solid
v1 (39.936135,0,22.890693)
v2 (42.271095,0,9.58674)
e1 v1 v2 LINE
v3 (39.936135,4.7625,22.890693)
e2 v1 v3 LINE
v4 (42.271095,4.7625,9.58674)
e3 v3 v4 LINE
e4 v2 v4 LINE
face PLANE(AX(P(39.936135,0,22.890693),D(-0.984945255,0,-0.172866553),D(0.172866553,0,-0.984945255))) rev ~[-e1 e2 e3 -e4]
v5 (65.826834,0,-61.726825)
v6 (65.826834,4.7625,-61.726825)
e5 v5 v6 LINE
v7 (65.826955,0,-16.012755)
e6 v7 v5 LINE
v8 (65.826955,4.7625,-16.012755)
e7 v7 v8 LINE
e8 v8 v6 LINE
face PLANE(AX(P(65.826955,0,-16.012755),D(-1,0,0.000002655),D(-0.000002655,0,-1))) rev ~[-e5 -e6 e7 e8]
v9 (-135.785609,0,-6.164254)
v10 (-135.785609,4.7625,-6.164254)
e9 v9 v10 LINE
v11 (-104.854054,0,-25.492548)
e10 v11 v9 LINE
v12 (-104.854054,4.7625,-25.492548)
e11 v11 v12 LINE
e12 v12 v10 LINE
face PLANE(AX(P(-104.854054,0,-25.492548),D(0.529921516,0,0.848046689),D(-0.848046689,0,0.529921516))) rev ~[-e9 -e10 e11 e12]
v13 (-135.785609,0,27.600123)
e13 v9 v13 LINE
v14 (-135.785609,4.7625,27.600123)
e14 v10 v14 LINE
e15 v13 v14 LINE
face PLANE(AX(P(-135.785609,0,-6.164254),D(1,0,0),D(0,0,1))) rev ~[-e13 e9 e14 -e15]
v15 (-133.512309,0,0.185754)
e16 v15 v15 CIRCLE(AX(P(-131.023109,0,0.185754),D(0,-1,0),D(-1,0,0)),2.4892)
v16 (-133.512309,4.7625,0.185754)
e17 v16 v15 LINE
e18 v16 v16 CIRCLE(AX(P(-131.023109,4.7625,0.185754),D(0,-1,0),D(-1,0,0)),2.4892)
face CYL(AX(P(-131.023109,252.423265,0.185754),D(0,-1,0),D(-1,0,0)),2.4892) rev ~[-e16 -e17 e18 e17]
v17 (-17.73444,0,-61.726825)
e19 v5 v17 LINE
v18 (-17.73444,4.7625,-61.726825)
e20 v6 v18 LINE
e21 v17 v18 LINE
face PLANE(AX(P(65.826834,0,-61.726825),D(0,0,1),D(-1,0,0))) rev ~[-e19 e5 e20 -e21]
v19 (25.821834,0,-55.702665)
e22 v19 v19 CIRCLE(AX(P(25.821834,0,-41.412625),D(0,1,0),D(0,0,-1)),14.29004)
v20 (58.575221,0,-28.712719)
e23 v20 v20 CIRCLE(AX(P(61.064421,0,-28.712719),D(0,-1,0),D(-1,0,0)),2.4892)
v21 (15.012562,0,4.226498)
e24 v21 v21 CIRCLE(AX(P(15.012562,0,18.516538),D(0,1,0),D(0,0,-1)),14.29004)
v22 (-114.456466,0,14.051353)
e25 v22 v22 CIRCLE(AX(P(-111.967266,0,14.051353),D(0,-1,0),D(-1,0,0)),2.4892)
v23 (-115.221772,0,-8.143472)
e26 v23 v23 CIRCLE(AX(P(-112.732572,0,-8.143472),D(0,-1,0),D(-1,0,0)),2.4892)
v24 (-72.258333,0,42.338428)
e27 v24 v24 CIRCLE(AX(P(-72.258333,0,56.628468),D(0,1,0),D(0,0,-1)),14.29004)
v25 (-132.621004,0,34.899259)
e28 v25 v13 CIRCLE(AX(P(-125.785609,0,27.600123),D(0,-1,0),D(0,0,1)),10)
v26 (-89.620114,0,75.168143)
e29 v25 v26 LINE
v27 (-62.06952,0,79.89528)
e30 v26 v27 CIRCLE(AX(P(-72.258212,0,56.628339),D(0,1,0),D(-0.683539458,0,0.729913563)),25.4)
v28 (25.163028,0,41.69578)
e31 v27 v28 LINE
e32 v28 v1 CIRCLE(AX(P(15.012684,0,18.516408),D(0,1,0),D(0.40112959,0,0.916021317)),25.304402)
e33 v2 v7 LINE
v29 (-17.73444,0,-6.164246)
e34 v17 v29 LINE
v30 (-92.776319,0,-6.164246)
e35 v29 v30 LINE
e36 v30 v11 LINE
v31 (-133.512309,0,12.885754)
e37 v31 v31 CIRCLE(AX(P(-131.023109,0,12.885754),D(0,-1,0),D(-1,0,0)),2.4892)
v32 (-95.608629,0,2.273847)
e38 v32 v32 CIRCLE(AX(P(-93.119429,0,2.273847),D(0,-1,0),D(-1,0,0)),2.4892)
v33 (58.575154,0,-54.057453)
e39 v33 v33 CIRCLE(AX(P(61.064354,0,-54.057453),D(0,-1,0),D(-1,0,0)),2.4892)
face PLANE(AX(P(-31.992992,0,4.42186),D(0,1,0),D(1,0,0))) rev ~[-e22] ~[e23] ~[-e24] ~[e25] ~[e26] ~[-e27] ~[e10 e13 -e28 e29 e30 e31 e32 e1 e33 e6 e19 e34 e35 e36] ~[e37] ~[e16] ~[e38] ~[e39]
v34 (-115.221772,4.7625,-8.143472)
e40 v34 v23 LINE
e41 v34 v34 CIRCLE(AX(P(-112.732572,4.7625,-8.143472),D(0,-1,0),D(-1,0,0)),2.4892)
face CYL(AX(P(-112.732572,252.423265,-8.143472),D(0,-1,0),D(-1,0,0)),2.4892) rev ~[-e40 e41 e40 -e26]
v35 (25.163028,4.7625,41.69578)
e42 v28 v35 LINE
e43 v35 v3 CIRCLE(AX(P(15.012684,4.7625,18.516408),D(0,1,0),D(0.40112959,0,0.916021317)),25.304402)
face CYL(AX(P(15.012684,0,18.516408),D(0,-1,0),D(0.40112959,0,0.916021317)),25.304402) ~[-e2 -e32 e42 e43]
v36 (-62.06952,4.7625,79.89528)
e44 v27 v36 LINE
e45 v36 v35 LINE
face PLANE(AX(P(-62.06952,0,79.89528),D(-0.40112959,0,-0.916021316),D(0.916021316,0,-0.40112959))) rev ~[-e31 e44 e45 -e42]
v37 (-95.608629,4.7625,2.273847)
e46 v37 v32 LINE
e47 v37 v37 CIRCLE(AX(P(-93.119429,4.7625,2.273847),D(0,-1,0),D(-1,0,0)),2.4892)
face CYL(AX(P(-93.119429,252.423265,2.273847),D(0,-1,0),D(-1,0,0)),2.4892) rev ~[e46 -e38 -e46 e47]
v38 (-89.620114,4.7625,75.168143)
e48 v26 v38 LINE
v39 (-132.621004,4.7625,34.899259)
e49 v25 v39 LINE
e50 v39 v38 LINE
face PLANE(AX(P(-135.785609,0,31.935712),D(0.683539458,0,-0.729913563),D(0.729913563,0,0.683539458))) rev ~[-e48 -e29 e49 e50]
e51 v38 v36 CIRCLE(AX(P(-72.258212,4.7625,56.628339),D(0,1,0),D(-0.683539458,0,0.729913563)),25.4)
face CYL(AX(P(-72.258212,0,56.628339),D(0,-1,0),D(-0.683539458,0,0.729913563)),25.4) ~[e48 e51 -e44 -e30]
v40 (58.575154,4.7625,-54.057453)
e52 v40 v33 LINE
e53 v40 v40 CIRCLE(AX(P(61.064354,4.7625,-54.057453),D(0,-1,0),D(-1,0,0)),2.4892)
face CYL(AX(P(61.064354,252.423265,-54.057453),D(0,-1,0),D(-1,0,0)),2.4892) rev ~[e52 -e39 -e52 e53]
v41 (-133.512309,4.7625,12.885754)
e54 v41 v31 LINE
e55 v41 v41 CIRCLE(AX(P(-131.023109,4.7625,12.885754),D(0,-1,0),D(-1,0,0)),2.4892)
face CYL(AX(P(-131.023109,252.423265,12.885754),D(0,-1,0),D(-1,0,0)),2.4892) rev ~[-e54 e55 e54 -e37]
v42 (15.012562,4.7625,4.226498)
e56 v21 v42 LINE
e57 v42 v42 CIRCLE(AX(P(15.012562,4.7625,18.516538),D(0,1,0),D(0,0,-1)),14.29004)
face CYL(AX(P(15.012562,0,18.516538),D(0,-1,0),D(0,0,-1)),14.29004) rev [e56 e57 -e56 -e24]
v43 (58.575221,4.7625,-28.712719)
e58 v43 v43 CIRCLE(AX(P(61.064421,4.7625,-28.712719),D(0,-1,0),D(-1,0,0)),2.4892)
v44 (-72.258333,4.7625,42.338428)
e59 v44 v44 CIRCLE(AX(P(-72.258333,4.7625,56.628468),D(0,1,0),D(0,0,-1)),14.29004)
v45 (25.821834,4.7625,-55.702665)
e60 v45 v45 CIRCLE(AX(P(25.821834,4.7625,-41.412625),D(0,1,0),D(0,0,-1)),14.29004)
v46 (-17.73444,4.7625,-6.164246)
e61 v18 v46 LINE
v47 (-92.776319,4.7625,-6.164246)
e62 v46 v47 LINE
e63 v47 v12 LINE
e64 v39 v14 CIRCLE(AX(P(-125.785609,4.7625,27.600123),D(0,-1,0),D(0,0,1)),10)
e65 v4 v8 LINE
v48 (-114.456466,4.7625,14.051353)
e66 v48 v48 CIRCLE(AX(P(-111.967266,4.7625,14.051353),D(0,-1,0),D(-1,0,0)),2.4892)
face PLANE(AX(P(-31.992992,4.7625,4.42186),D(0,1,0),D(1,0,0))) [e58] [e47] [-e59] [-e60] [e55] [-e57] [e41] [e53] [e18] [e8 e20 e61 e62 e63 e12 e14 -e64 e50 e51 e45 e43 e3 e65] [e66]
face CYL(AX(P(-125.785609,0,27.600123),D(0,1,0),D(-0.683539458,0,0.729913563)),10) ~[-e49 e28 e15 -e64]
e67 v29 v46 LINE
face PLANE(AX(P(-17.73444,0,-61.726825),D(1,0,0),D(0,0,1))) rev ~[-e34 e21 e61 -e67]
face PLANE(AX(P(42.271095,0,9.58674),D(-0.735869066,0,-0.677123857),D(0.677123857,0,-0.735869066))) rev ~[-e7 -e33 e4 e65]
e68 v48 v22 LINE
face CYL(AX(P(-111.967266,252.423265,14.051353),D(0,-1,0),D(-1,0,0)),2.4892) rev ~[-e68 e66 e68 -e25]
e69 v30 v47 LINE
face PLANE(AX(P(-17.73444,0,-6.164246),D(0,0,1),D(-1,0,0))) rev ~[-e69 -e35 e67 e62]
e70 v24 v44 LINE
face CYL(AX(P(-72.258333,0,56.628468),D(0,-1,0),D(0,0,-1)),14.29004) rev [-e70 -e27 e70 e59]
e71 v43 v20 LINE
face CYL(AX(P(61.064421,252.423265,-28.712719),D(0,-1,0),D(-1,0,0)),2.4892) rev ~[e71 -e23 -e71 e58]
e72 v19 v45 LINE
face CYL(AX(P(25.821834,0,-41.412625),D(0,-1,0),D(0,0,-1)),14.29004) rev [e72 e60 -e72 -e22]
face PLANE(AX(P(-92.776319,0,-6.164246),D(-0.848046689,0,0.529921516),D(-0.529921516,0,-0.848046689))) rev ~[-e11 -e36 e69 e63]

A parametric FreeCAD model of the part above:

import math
import FreeCAD as App
import Part
import Sketcher
from FreeCAD import Vector
Q = App.Units.Quantity


def edges_at(feature, points):
    """Names of the edges that pass closest to the given points."""
    edges = feature.Shape.Edges
    near = lambda p: min(range(len(edges)), key=lambda i: edges[i].distToShape(Part.Vertex(*p))[0])
    return sorted({f"Edge{near(p) + 1}" for p in points})

doc = App.newDocument("Part")
body = doc.addObject("PartDesign::Body", "Body")

# Sketch on XZ plane
sketch1 = body.newObject("Sketcher::SketchObject", "Sketch")
sketch1.AttachmentSupport = (doc.getObject("XZ_Plane"), [""])
sketch1.MapMode = "FlatFace"
sketch1.addGeometry([
    Part.LineSegment(Vector(-62.06952, 79.89528, 0), Vector(25.163028, 41.69578, 0)),  # 0
    Part.ArcOfCircle(Part.Circle(Vector(15.012684, 18.516408, 0), Vector(0, 0, 1), 25.304402), math.radians(9.954529), math.radians(66.351186)),  # 1
    Part.LineSegment(Vector(39.936135, 22.890693, 0), Vector(42.271095, 9.58674, 0)),  # 2
    Part.LineSegment(Vector(42.271095, 9.58674, 0), Vector(65.826955, -16.012755, 0)),  # 3
    Part.LineSegment(Vector(65.826955, -16.012755, 0), Vector(65.826834, -61.726825, 0)),  # 4
    Part.LineSegment(Vector(65.826834, -61.726825, 0), Vector(-17.73444, -61.726825, 0)),  # 5
    Part.LineSegment(Vector(-17.73444, -61.726825, 0), Vector(-17.73444, -6.164246, 0)),  # 6
    Part.LineSegment(Vector(-17.73444, -6.164246, 0), Vector(-92.776319, -6.164246, 0)),  # 7
    Part.LineSegment(Vector(-92.776319, -6.164246, 0), Vector(-104.854054, -25.492548, 0)),  # 8
    Part.LineSegment(Vector(-104.854054, -25.492548, 0), Vector(-135.785609, -6.164254, 0)),  # 9
    Part.LineSegment(Vector(-135.785609, -6.164254, 0), Vector(-135.785609, 31.935712, 0)),  # 10
    Part.LineSegment(Vector(-135.785609, 31.935712, 0), Vector(-89.620114, 75.168143, 0)),  # 11
    Part.ArcOfCircle(Part.Circle(Vector(-72.258212, 56.628339, 0), Vector(0, 0, 1), 25.4), math.radians(66.351186), math.radians(133.120852)),  # 12
    Part.Circle(Vector(-72.258333, 56.628468, 0), Vector(0, 0, 1), 14.29004),  # 13
    Part.Circle(Vector(15.012562, 18.516538, 0), Vector(0, 0, 1), 14.29004),  # 14
    Part.Circle(Vector(25.821834, -41.412625, 0), Vector(0, 0, 1), 14.29004),  # 15
], False)
sketch1.addConstraint([
    Sketcher.Constraint("Tangent", 0, 2, 1, 2),
    Sketcher.Constraint("Tangent", 1, 1, 2, 1),
    Sketcher.Constraint("Coincident", 2, 2, 3, 1),
    Sketcher.Constraint("Coincident", 3, 2, 4, 1),
    Sketcher.Constraint("Coincident", 4, 2, 5, 1),
    Sketcher.Constraint("Coincident", 5, 2, 6, 1),
    Sketcher.Constraint("Coincident", 6, 2, 7, 1),
    Sketcher.Constraint("Coincident", 7, 2, 8, 1),
    Sketcher.Constraint("Coincident", 8, 2, 9, 1),
    Sketcher.Constraint("Coincident", 9, 2, 10, 1),
    Sketcher.Constraint("Coincident", 10, 2, 11, 1),
    Sketcher.Constraint("Tangent", 11, 2, 12, 2),
    Sketcher.Constraint("Tangent", 12, 1, 0, 1),
    Sketcher.Constraint("Horizontal", 5),
    Sketcher.Constraint("Vertical", 6),
    Sketcher.Constraint("Horizontal", 7),
    Sketcher.Constraint("Vertical", 10),
    Sketcher.Constraint("Equal", 13, 14),
    Sketcher.Constraint("Equal", 14, 15),
    Sketcher.Constraint("Perpendicular", 8, 9),
    Sketcher.Constraint("Radius", 12, Q("1 in")),
    Sketcher.Constraint("Diameter", 13, Q("1.1252 in")),
    Sketcher.Constraint("DistanceX", 15, 3, 4, 2, Q("1.575 in")),
    Sketcher.Constraint("Radius", 1, Q("25.304402 mm")),
    Sketcher.Constraint("DistanceX", 7, 2, 7, 1, Q("75.041879 mm")),
    Sketcher.Constraint("DistanceY", 6, 1, 6, 2, Q("55.56258 mm")),
    Sketcher.Constraint("DistanceY", 14, 3, 12, 3, Q("38.111801 mm")),
    Sketcher.Constraint("DistanceX", 15, 3, 1, 1, Q("14.114301 mm")),
    Sketcher.Constraint("DistanceY", 2, 2, 14, 3, Q("8.929798 mm")),
    Sketcher.Constraint("DistanceY", 4, 2, 15, 3, Q("20.3142 mm")),
    Sketcher.Constraint("DistanceX", 5, 2, 14, 3, Q("32.747002 mm")),
    Sketcher.Constraint("DistanceX", 7, 2, 12, 1, Q("30.706799 mm")),
    Sketcher.Constraint("Distance", 3, Q("34.788111 mm")),
    Sketcher.Constraint("Distance", 4, Q("45.71407 mm")),
    Sketcher.Constraint("Distance", 9, Q("36.473882 mm")),
    Sketcher.Constraint("DistanceX", 5, 2, 5, 1, Q("83.561273 mm")),
    Sketcher.Constraint("DistanceY", 10, 1, 10, 2, Q("38.099966 mm")),
    Sketcher.Constraint("DistanceY", -1, 1, 1, 3, Q("18.516408 mm")),
    Sketcher.Constraint("DistanceX", 12, 3, -1, 1, Q("72.258212 mm")),
    Sketcher.Constraint("DistanceY", -1, 1, 12, 3, Q("56.628339 mm")),
    Sketcher.Constraint("DistanceY", -1, 1, 13, 3, Q("56.628468 mm")),
    Sketcher.Constraint("DistanceX", -1, 1, 0, 2, Q("25.163028 mm")),
    Sketcher.Constraint("DistanceY", 8, 2, -1, 1, Q("25.492548 mm")),
    Sketcher.Constraint("DistanceX", 9, 2, -1, 1, Q("135.785609 mm")),
    Sketcher.Constraint("DistanceX", 13, 3, 12, 3, Q("0.000121 mm")),
    Sketcher.Constraint("DistanceY", 15, 3, 1, 1, Q("64.303318 mm")),
])
pad1 = body.newObject("PartDesign::Pad", "Pad")
pad1.Profile = sketch1
pad1.Length = Q("0.1875 in")
pad1.Reversed = True
doc.recompute()

fillet = body.newObject("PartDesign::Fillet", "Fillet")
fillet.Base = (pad1, edges_at(pad1, [(-135.786, 2.381, 31.936)]))
fillet.Radius = 10

# Sketch on XZ plane
sketch2 = body.newObject("Sketcher::SketchObject", "Sketch001")
sketch2.AttachmentSupport = (doc.getObject("XZ_Plane"), [""])
sketch2.MapMode = "FlatFace"
sketch2.AttachmentOffset = App.Placement(Vector(0, 0, -0.1875 * 25.4), App.Rotation())
sketch2.addGeometry([
    Part.Circle(Vector(61.064354, -54.057453, 0), Vector(0, 0, 1), 2.4892),
    Part.Circle(Vector(61.064421, -28.712719, 0), Vector(0, 0, 1), 2.4892),
    Part.Circle(Vector(-131.023109, 0.185754, 0), Vector(0, 0, 1), 2.4892),
    Part.Circle(Vector(-131.023109, 12.885754, 0), Vector(0, 0, 1), 2.4892),
], False)
sketch2.addConstraint([
    Sketcher.Constraint("Equal", 0, 1),
    Sketcher.Constraint("Equal", 1, 2),
    Sketcher.Constraint("Equal", 2, 3),
    Sketcher.Constraint("Vertical", 2, 3, 3, 3),
    Sketcher.Constraint("Diameter", 0, Q("0.196 in")),
    Sketcher.Constraint("DistanceY", 2, 3, 3, 3, Q("0.5 in")),
    Sketcher.Constraint("DistanceX", -1, 1, 1, 3, Q("61.064421 mm")),
    Sketcher.Constraint("DistanceY", 1, 3, -1, 1, Q("28.712719 mm")),
    Sketcher.Constraint("DistanceX", 2, 3, -1, 1, Q("131.023109 mm")),
    Sketcher.Constraint("DistanceX", -1, 1, 0, 3, Q("61.064354 mm")),
    Sketcher.Constraint("DistanceY", 0, 3, -1, 1, Q("54.057453 mm")),
    Sketcher.Constraint("DistanceY", -1, 1, 2, 3, Q("0.185754 mm")),
])
doc.recompute()
hole = body.newObject("PartDesign::Hole", "Hole")
hole.Profile = sketch2
hole.ThreadType = "None"
hole.Diameter = Q("0.196 in")
hole.DepthType = "ThroughAll"
hole.Reversed = True

# Sketch on XZ plane
sketch3 = body.newObject("Sketcher::SketchObject", "Sketch002")
sketch3.AttachmentSupport = (doc.getObject("XZ_Plane"), [""])
sketch3.MapMode = "FlatFace"
sketch3.AttachmentOffset = App.Placement(Vector(0, 0, -0.1875 * 25.4), App.Rotation())
sketch3.addGeometry([
    Part.Circle(Vector(-111.967266, 14.051353, 0), Vector(0, 0, 1), 2.4892),
    Part.Circle(Vector(-93.119429, 2.273847, 0), Vector(0, 0, 1), 2.4892),
    Part.Circle(Vector(-112.732572, -8.143472, 0), Vector(0, 0, 1), 2.4892),
], False)
sketch3.addConstraint([
    Sketcher.Constraint("Equal", 0, 1),
    Sketcher.Constraint("Equal", 1, 2),
    Sketcher.Constraint("Diameter", 0, Q("0.196 in")),
    Sketcher.Constraint("DistanceX", 1, 3, -1, 1, Q("93.119429 mm")),
    Sketcher.Constraint("DistanceY", 2, 3, 1, 3, Q("10.417319 mm")),
    Sketcher.Constraint("DistanceX", 0, 3, -1, 1, Q("111.967266 mm")),
    Sketcher.Constraint("DistanceY", -1, 1, 0, 3, Q("14.051353 mm")),
    Sketcher.Constraint("DistanceY", -1, 1, 1, 3, Q("2.273847 mm")),
    Sketcher.Constraint("DistanceX", 2, 3, -1, 1, Q("112.732572 mm")),
])
doc.recompute()
hole2 = body.newObject("PartDesign::Hole", "Hole001")
hole2.Profile = sketch3
hole2.ThreadType = "None"
hole2.Diameter = Q("0.196 in")
hole2.DepthType = "ThroughAll"
hole2.Reversed = True

doc.recompute()
